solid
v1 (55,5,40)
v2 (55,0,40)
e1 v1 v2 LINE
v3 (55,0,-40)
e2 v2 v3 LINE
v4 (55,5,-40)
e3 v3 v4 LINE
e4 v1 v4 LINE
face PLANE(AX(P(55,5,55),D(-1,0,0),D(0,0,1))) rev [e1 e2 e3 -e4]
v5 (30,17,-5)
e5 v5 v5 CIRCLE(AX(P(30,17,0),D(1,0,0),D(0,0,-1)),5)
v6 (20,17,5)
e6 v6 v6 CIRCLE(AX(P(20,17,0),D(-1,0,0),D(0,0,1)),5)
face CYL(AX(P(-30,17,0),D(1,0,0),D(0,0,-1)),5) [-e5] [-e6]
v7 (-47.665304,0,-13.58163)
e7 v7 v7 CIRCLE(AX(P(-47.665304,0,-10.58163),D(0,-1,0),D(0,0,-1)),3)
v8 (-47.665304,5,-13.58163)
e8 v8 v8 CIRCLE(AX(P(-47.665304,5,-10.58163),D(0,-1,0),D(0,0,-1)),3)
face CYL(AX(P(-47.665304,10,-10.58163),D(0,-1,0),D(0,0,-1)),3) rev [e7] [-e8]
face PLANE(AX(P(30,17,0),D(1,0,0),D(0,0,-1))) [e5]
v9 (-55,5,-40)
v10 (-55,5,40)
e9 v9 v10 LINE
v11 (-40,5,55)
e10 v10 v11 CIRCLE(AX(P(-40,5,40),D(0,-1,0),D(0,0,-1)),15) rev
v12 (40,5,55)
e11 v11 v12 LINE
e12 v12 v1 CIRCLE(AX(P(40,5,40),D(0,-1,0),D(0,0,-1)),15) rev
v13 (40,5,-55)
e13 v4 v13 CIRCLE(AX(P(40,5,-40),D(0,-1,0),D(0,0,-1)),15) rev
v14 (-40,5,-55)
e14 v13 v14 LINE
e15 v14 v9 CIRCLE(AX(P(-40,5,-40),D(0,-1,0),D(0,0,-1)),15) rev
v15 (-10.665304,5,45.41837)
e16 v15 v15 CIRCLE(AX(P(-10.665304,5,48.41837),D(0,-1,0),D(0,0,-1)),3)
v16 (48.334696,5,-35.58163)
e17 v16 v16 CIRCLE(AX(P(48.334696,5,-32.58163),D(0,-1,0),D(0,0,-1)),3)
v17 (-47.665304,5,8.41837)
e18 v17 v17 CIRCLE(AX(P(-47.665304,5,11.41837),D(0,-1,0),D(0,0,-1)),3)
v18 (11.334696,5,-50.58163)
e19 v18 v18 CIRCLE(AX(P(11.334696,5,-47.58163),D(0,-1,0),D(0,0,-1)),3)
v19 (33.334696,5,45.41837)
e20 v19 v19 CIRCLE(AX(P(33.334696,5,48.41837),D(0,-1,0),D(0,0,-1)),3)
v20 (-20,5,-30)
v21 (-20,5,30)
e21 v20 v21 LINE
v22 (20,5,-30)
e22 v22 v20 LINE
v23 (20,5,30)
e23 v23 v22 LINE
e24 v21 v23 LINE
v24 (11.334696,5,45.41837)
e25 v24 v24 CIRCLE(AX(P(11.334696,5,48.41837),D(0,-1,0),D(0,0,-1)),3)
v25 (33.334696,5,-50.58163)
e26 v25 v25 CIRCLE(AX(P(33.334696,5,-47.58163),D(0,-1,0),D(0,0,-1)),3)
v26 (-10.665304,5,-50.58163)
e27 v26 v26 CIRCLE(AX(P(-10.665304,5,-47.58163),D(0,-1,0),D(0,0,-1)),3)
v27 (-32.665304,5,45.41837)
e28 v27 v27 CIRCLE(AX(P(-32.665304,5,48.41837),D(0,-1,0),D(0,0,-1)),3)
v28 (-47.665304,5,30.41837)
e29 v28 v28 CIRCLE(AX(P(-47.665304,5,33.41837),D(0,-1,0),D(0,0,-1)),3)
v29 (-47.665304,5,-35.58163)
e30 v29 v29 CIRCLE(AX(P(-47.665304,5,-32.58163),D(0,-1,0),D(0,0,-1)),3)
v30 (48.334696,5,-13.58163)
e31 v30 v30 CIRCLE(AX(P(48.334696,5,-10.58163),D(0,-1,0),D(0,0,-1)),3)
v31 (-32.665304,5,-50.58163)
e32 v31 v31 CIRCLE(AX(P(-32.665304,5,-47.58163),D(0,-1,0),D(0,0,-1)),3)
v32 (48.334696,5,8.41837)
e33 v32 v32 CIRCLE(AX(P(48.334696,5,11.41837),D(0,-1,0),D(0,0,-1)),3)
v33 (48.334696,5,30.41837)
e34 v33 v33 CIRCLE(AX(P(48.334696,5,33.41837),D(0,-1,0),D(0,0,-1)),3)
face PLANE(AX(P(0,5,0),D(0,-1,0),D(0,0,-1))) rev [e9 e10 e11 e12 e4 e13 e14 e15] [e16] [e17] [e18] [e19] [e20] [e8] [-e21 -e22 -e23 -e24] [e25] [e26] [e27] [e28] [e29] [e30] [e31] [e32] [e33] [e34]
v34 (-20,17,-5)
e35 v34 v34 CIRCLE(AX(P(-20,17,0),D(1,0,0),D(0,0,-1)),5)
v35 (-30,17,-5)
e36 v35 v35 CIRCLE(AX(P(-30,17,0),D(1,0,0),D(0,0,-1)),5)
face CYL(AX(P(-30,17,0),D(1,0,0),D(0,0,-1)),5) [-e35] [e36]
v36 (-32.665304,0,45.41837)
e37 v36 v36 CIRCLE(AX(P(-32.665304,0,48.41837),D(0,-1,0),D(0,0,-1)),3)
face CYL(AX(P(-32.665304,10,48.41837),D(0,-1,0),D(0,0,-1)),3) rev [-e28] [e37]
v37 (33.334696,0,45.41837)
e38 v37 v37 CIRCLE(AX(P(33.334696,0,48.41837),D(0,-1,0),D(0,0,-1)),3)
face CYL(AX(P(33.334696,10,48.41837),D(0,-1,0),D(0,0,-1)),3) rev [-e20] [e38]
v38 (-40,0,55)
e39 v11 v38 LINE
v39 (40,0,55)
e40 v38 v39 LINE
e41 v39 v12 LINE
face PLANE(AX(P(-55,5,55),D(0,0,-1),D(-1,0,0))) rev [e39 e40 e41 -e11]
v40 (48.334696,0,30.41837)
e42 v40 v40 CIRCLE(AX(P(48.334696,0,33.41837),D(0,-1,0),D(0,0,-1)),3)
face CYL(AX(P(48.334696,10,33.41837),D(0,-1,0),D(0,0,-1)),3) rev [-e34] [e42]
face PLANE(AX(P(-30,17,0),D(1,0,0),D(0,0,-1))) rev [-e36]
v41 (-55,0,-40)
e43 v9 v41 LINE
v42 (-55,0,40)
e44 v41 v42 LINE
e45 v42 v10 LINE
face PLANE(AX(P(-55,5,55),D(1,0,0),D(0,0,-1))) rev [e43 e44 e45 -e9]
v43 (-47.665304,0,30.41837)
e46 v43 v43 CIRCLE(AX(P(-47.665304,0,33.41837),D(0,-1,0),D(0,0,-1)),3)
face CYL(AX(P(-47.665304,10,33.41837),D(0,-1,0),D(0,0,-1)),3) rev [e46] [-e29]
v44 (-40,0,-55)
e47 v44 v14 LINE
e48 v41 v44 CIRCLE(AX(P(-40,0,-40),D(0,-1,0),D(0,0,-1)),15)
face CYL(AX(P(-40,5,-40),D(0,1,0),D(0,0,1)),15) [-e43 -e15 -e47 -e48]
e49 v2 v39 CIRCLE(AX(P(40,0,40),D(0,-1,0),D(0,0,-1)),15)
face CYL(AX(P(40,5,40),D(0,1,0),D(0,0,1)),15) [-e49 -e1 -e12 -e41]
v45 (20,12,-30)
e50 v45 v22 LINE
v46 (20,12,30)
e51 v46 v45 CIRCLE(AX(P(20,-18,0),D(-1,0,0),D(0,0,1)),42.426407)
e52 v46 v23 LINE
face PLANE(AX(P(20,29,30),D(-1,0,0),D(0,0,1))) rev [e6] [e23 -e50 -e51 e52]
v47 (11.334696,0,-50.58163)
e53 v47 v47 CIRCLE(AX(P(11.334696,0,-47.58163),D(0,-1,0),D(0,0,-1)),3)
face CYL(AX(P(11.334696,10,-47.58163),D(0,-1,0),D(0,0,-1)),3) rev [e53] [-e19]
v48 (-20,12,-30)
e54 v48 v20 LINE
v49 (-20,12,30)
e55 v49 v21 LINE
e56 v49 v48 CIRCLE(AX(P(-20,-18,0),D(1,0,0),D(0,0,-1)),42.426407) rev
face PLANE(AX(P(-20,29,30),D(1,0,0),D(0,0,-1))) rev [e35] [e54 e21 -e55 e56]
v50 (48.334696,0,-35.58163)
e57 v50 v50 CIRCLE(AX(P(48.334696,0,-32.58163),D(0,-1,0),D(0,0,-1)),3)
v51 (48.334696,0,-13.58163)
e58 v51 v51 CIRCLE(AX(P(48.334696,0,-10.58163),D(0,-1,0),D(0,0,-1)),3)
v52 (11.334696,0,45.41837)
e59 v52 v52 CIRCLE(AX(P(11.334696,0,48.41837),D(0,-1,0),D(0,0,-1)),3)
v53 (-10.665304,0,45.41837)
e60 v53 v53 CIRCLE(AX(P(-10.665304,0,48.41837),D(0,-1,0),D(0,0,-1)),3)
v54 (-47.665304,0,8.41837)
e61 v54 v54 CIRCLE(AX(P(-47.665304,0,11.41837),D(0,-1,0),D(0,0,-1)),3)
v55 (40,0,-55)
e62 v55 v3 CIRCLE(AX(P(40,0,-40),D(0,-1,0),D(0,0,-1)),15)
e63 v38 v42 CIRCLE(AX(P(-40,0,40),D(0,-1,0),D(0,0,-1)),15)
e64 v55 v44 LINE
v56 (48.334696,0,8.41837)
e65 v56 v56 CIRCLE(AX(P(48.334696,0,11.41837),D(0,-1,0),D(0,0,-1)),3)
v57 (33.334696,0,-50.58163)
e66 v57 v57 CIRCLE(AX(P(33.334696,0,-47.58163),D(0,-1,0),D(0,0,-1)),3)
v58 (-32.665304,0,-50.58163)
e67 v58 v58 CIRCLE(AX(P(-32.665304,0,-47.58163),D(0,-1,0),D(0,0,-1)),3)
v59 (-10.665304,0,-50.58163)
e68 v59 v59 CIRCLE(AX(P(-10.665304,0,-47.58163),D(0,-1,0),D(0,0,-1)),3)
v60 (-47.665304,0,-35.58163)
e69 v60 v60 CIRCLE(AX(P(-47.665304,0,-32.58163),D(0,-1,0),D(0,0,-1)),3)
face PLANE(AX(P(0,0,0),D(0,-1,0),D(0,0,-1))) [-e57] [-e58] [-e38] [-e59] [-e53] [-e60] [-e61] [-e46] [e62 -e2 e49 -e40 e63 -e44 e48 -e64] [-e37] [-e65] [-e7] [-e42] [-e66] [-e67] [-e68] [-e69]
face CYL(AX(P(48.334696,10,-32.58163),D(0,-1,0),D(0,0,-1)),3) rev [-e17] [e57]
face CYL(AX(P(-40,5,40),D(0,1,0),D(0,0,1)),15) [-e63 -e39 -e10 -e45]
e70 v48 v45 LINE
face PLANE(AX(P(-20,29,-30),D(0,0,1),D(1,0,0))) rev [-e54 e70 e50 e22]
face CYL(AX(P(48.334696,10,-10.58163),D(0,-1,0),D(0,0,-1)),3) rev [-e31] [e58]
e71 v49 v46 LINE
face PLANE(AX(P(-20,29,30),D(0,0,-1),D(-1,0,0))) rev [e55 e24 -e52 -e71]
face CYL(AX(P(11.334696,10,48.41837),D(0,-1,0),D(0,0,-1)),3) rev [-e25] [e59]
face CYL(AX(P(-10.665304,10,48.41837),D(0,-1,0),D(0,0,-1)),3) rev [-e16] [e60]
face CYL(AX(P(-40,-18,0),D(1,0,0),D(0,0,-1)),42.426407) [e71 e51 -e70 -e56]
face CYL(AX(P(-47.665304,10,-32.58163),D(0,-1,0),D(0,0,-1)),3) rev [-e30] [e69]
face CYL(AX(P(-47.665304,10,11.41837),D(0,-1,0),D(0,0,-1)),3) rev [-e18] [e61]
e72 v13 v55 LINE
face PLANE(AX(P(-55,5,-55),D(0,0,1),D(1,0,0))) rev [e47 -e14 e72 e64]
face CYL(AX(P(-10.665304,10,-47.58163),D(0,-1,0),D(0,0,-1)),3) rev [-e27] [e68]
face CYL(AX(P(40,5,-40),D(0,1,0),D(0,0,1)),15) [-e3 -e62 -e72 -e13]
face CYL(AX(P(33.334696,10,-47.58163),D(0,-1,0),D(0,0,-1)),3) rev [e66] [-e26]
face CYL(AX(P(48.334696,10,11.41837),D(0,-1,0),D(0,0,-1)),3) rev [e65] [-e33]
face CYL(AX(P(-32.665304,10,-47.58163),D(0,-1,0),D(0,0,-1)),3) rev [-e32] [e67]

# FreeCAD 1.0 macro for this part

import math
import FreeCAD as App
import Part
import Sketcher
from FreeCAD import Vector


def edges_at(feature, points):
    """Names of the edges that pass closest to the given points."""
    edges = feature.Shape.Edges
    near = lambda p: min(range(len(edges)), key=lambda i: edges[i].distToShape(Part.Vertex(*p))[0])
    return sorted({f"Edge{near(p) + 1}" for p in points})

doc = App.newDocument("Part")
params = doc.addObject("Spreadsheet::Sheet", "Params")
for row, (alias, value) in enumerate([
    ("sketch1_width", "110 mm"),
    ("pad1_length", "5 mm"),
    ("fillet_radius", "15 mm"),
    ("fillet2_radius", "15 mm"),
    ("fillet3_radius", "15 mm"),
    ("fillet4_radius", "15 mm"),
    ("sketch2_width", "40 mm"),
    ("sketch2_height", "60 mm"),
    ("pad2_length", "24 mm"),
    ("sketch3_diameter", "10 mm"),
    ("pad3_length", "10 mm"),
    ("pad3_length2", "50 mm"),
    ("fillet5_radius", "10 mm"),
    ("fillet6_radius", "10 mm"),
    ("sketch4_diameter", "6 mm"),
    ("pocket1_length", "10 mm"),
    ("sketch5_radius", "10 mm"),
    ("sketch5_width", "7 mm"),
    ("sketch5_height", "40 mm"),
    ("pocket2_length", "60 mm"),
], start=1):
    params.set(f"A{row}", alias)
    params.set(f"B{row}", "=" + value)
    params.setAlias(f"B{row}", alias)

body = doc.addObject("PartDesign::Body", "Body")

# Sketch on XZ plane
sketch1 = body.newObject("Sketcher::SketchObject", "Sketch")
sketch1.AttachmentSupport = (doc.getObject("XZ_Plane"), [""])
sketch1.MapMode = "FlatFace"
sketch1.addGeometry([
    Part.LineSegment(Vector(-55, -55, 0), Vector(-55, 55, 0)),
    Part.LineSegment(Vector(-55, 55, 0), Vector(55, 55, 0)),
    Part.LineSegment(Vector(55, 55, 0), Vector(55, -55, 0)),
    Part.LineSegment(Vector(55, -55, 0), Vector(-55, -55, 0)),
], False)
sketch1.addConstraint([
    Sketcher.Constraint("Coincident", 0, 2, 1, 1),
    Sketcher.Constraint("Coincident", 1, 2, 2, 1),
    Sketcher.Constraint("Coincident", 2, 2, 3, 1),
    Sketcher.Constraint("Coincident", 3, 2, 0, 1),
    Sketcher.Constraint("Vertical", 0),
    Sketcher.Constraint("Horizontal", 1),
    Sketcher.Constraint("Vertical", 2),
    Sketcher.Constraint("Horizontal", 3),
    Sketcher.Constraint("Symmetric", 0, 2, 2, 2, -1, 1),
    Sketcher.Constraint("Equal", 3, 0),
    Sketcher.Constraint("DistanceX", 1, 1, 1, 2, 110.0),
])
sketch1.setExpression("Constraints[10]", "Params.sketch1_width")
pad1 = body.newObject("PartDesign::Pad", "Pad")
pad1.Profile = sketch1
pad1.setExpression("Length", "Params.pad1_length")
pad1.Reversed = True
doc.recompute()

fillet = body.newObject("PartDesign::Fillet", "Fillet")
fillet.Base = (pad1, edges_at(pad1, [(55, 2.5, -55)]))
fillet.setExpression("Radius", "Params.fillet_radius")
doc.recompute()

fillet2 = body.newObject("PartDesign::Fillet", "Fillet001")
fillet2.Base = (fillet, edges_at(fillet, [(-55, 2.5, -55)]))
fillet2.setExpression("Radius", "Params.fillet2_radius")
doc.recompute()

fillet3 = body.newObject("PartDesign::Fillet", "Fillet002")
fillet3.Base = (fillet2, edges_at(fillet2, [(-55, 2.5, 55)]))
fillet3.setExpression("Radius", "Params.fillet3_radius")
doc.recompute()

fillet4 = body.newObject("PartDesign::Fillet", "Fillet003")
fillet4.Base = (fillet3, edges_at(fillet3, [(55, 2.5, 55)]))
fillet4.setExpression("Radius", "Params.fillet4_radius")

# Sketch on XZ plane
sketch2 = body.newObject("Sketcher::SketchObject", "Sketch001")
sketch2.AttachmentSupport = (doc.getObject("XZ_Plane"), [""])
sketch2.MapMode = "FlatFace"
sketch2.AttachmentOffset = App.Placement(Vector(0, 0, -5), App.Rotation())
sketch2.addGeometry([
    Part.LineSegment(Vector(-20, -30, 0), Vector(-20, 30, 0)),
    Part.LineSegment(Vector(-20, 30, 0), Vector(20, 30, 0)),
    Part.LineSegment(Vector(20, 30, 0), Vector(20, -30, 0)),
    Part.LineSegment(Vector(20, -30, 0), Vector(-20, -30, 0)),
], False)
sketch2.addConstraint([
    Sketcher.Constraint("Coincident", 0, 2, 1, 1),
    Sketcher.Constraint("Coincident", 1, 2, 2, 1),
    Sketcher.Constraint("Coincident", 2, 2, 3, 1),
    Sketcher.Constraint("Coincident", 3, 2, 0, 1),
    Sketcher.Constraint("Vertical", 0),
    Sketcher.Constraint("Horizontal", 1),
    Sketcher.Constraint("Vertical", 2),
    Sketcher.Constraint("Horizontal", 3),
    Sketcher.Constraint("Symmetric", 0, 2, 2, 2, -1, 1),
    Sketcher.Constraint("DistanceX", 1, 1, 1, 2, 40.0),
    Sketcher.Constraint("DistanceY", 0, 1, 0, 2, 60.0),
])
sketch2.setExpression("Constraints[9]", "Params.sketch2_width")
sketch2.setExpression("Constraints[10]", "Params.sketch2_height")
pad2 = body.newObject("PartDesign::Pad", "Pad001")
pad2.Profile = sketch2
pad2.setExpression("Length", "Params.pad2_length")
pad2.Reversed = True

# Sketch on YZ plane
sketch3 = body.newObject("Sketcher::SketchObject", "Sketch002")
sketch3.AttachmentSupport = (doc.getObject("YZ_Plane"), [""])
sketch3.MapMode = "FlatFace"
sketch3.AttachmentOffset = App.Placement(Vector(0, 0, 20), App.Rotation())
sketch3.addGeometry(Part.Circle(Vector(17, 0, 0), Vector(0, 0, 1), 5), False)
sketch3.addConstraint([
    Sketcher.Constraint("PointOnObject", 0, 3, -1),
    Sketcher.Constraint("Diameter", 0, 10.0),
    Sketcher.Constraint("DistanceX", -1, 1, 0, 3, 17.0),
])
sketch3.setExpression("Constraints[1]", "Params.sketch3_diameter")
pad3 = body.newObject("PartDesign::Pad", "Pad002")
pad3.Profile = sketch3
pad3.Type = "TwoLengths"
pad3.setExpression("Length", "Params.pad3_length")
pad3.setExpression("Length2", "Params.pad3_length2")
doc.recompute()

fillet5 = body.newObject("PartDesign::Fillet", "Fillet004")
fillet5.Base = (pad3, edges_at(pad3, [(0, 29, 30)]))
fillet5.setExpression("Radius", "Params.fillet5_radius")
doc.recompute()

fillet6 = body.newObject("PartDesign::Fillet", "Fillet005")
fillet6.Base = (fillet5, edges_at(fillet5, [(0, 29, -30)]))
fillet6.setExpression("Radius", "Params.fillet6_radius")

# Sketch on XZ plane
sketch4 = body.newObject("Sketcher::SketchObject", "Sketch003")
sketch4.AttachmentSupport = (doc.getObject("XZ_Plane"), [""])
sketch4.MapMode = "FlatFace"
sketch4.addGeometry([
    Part.Circle(Vector(48.3, -10.6, 0), Vector(0, 0, 1), 3),  # 0
    Part.Circle(Vector(48.3, 33.4, 0), Vector(0, 0, 1), 3),  # 1
    Part.Circle(Vector(-47.7, 11.4, 0), Vector(0, 0, 1), 3),  # 2
    Part.Circle(Vector(-47.7, -10.6, 0), Vector(0, 0, 1), 3),  # 3
    Part.Circle(Vector(-47.7, -32.6, 0), Vector(0, 0, 1), 3),  # 4
    Part.Circle(Vector(-32.7, -47.6, 0), Vector(0, 0, 1), 3),  # 5
    Part.Circle(Vector(-10.7, -47.6, 0), Vector(0, 0, 1), 3),  # 6
    Part.Circle(Vector(11.3, -47.6, 0), Vector(0, 0, 1), 3),  # 7
    Part.Circle(Vector(33.3, -47.6, 0), Vector(0, 0, 1), 3),  # 8
    Part.Circle(Vector(48.3, -32.6, 0), Vector(0, 0, 1), 3),  # 9
    Part.Circle(Vector(48.3, 11.4, 0), Vector(0, 0, 1), 3),  # 10
    Part.Circle(Vector(33.3, 48.4, 0), Vector(0, 0, 1), 3),  # 11
    Part.Circle(Vector(11.3, 48.4, 0), Vector(0, 0, 1), 3),  # 12
    Part.Circle(Vector(-10.7, 48.4, 0), Vector(0, 0, 1), 3),  # 13
    Part.Circle(Vector(-32.7, 48.4, 0), Vector(0, 0, 1), 3),  # 14
    Part.Circle(Vector(-47.7, 33.4, 0), Vector(0, 0, 1), 3),  # 15
], False)
sketch4.addConstraint([
    Sketcher.Constraint("Equal", 0, 1),
    Sketcher.Constraint("Equal", 1, 2),
    Sketcher.Constraint("Equal", 2, 3),
    Sketcher.Constraint("Equal", 3, 4),
    Sketcher.Constraint("Equal", 4, 5),
    Sketcher.Constraint("Equal", 5, 6),
    Sketcher.Constraint("Equal", 6, 7),
    Sketcher.Constraint("Equal", 7, 8),
    Sketcher.Constraint("Equal", 8, 9),
    Sketcher.Constraint("Equal", 9, 10),
    Sketcher.Constraint("Equal", 10, 11),
    Sketcher.Constraint("Equal", 11, 12),
    Sketcher.Constraint("Equal", 12, 13),
    Sketcher.Constraint("Equal", 13, 14),
    Sketcher.Constraint("Equal", 14, 15),
    Sketcher.Constraint("Horizontal", 0, 3, 3, 3),
    Sketcher.Constraint("Horizontal", 5, 3, 6, 3),
    Sketcher.Constraint("Horizontal", 6, 3, 7, 3),
    Sketcher.Constraint("Horizontal", 7, 3, 8, 3),
    Sketcher.Constraint("Horizontal", 4, 3, 9, 3),
    Sketcher.Constraint("Horizontal", 2, 3, 10, 3),
    Sketcher.Constraint("Horizontal", 11, 3, 12, 3),
    Sketcher.Constraint("Horizontal", 12, 3, 13, 3),
    Sketcher.Constraint("Horizontal", 13, 3, 14, 3),
    Sketcher.Constraint("Horizontal", 1, 3, 15, 3),
    Sketcher.Constraint("Vertical", 0, 3, 1, 3),
    Sketcher.Constraint("Vertical", 2, 3, 3, 3),
    Sketcher.Constraint("Vertical", 3, 3, 4, 3),
    Sketcher.Constraint("Vertical", 1, 3, 9, 3),
    Sketcher.Constraint("Vertical", 9, 3, 10, 3),
    Sketcher.Constraint("Vertical", 8, 3, 11, 3),
    Sketcher.Constraint("Vertical", 7, 3, 12, 3),
    Sketcher.Constraint("Vertical", 6, 3, 13, 3),
    Sketcher.Constraint("Vertical", 5, 3, 14, 3),
    Sketcher.Constraint("Vertical", 4, 3, 15, 3),
    Sketcher.Constraint("Diameter", 0, 6.0),
    Sketcher.Constraint("DistanceY", 0, 3, 1, 3, 44.0),
    Sketcher.Constraint("DistanceX", 2, 3, 0, 3, 96.0),
    Sketcher.Constraint("DistanceY", 0, 3, 2, 3, 22.0),
    Sketcher.Constraint("DistanceY", 4, 3, 3, 3, 22.0),
    Sketcher.Constraint("DistanceX", 4, 3, 5, 3, 15.0),
    Sketcher.Constraint("DistanceY", 5, 3, 4, 3, 15.0),
    Sketcher.Constraint("DistanceX", 5, 3, 6, 3, 22.0),
    Sketcher.Constraint("DistanceX", 6, 3, 7, 3, 22.0),
    Sketcher.Constraint("DistanceX", 7, 3, 8, 3, 22.0),
    Sketcher.Constraint("DistanceY", 1, 3, 11, 3, 15.0),
    Sketcher.Constraint("DistanceY", 0, 3, -1, 1, 10.58163),
    Sketcher.Constraint("DistanceX", -1, 1, 0, 3, 48.334696),
])
sketch4.setExpression("Constraints[35]", "Params.sketch4_diameter")
pocket1 = body.newObject("PartDesign::Pocket", "Pocket")
pocket1.Profile = sketch4
pocket1.setExpression("Length", "Params.pocket1_length")

# Sketch on YZ plane
sketch5 = body.newObject("Sketcher::SketchObject", "Sketch004")
sketch5.AttachmentSupport = (doc.getObject("YZ_Plane"), [""])
sketch5.MapMode = "FlatFace"
sketch5.AttachmentOffset = App.Placement(Vector(0, 0, 20), App.Rotation())
sketch5.addGeometry([
    Part.LineSegment(Vector(12, -30, 0), Vector(19, -30, 0)),  # 0
    Part.ArcOfCircle(Part.Circle(Vector(19, -20, 0), Vector(0, 0, 1), 10), math.radians(-90), math.radians(0)),  # 1
    Part.LineSegment(Vector(29, -20, 0), Vector(29, 20, 0)),  # 2
    Part.ArcOfCircle(Part.Circle(Vector(19, 20, 0), Vector(0, 0, 1), 10), math.radians(0), math.radians(90)),  # 3
    Part.LineSegment(Vector(19, 30, 0), Vector(12, 30, 0)),  # 4
    Part.ArcOfCircle(Part.Circle(Vector(-18, 0, 0), Vector(0, 0, 1), 42), math.radians(-45), math.radians(45)),  # 5
], False)
sketch5.addConstraint([
    Sketcher.Constraint("Tangent", 0, 2, 1, 1),
    Sketcher.Constraint("Tangent", 1, 2, 2, 1),
    Sketcher.Constraint("Tangent", 2, 2, 3, 1),
    Sketcher.Constraint("Tangent", 3, 2, 4, 1),
    Sketcher.Constraint("Coincident", 4, 2, 5, 2),
    Sketcher.Constraint("Coincident", 5, 1, 0, 1),
    Sketcher.Constraint("Horizontal", 0),
    Sketcher.Constraint("Vertical", 2),
    Sketcher.Constraint("Horizontal", 4),
    Sketcher.Constraint("Equal", 1, 3),
    Sketcher.Constraint("Symmetric", 4, 2, 5, 1, -1),
    Sketcher.Constraint("Radius", 1, 10.0),
    Sketcher.Constraint("DistanceX", 0, 1, 0, 2, 7.0),
    Sketcher.Constraint("DistanceY", 2, 1, 2, 2, 40.0),
    Sketcher.Constraint("DistanceX", -1, 1, 1, 3, 19.0),
    Sketcher.Constraint("DistanceX", 5, 3, -1, 1, 18.0),
])
sketch5.setExpression("Constraints[11]", "Params.sketch5_radius")
sketch5.setExpression("Constraints[12]", "Params.sketch5_width")
sketch5.setExpression("Constraints[13]", "Params.sketch5_height")
pocket2 = body.newObject("PartDesign::Pocket", "Pocket001")
pocket2.Profile = sketch5
pocket2.setExpression("Length", "Params.pocket2_length")

doc.recompute()
